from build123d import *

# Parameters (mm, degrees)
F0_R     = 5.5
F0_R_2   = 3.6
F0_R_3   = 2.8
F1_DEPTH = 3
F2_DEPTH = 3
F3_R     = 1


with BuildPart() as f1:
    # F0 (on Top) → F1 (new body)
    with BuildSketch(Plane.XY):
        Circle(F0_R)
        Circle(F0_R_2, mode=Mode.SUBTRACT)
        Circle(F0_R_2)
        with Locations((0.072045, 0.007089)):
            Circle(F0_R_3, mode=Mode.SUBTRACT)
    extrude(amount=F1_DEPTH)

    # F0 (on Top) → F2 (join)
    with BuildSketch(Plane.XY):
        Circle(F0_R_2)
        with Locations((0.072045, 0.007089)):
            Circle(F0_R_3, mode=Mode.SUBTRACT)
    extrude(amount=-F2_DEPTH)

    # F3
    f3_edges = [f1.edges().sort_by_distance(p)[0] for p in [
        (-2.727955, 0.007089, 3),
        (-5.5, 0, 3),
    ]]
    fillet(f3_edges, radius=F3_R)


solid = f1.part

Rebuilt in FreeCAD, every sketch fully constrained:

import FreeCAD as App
import Part
import Sketcher

V = App.Vector


def edges_at(feature, points):
    """Names of the edges that pass closest to the given points."""
    edges = feature.Shape.Edges
    near = lambda p: min(range(len(edges)), key=lambda i: edges[i].distToShape(Part.Vertex(*p))[0])
    return sorted({f"Edge{near(p) + 1}" for p in points})

doc = App.newDocument("Part")
body = doc.addObject("PartDesign::Body", "Body")

# Sketch on XY plane
sketch1 = doc.addObject("Sketcher::SketchObject", "Sketch")
body.addObject(sketch1)
sketch1.AttachmentSupport = (doc.XY_Plane, [""])
sketch1.MapMode = "FlatFace"
sketch1.addGeometry([
    Part.Circle(V(0, 0, 0), V(0, 0, 1), 5.5),
    Part.Circle(V(0.072045, 0.007089, 0), V(0, 0, 1), 2.8),
], False)
sketch1.addConstraint([
    Sketcher.Constraint("Coincident", 0, 3, -1, 1),
    Sketcher.Constraint("Diameter", 0, 11.0),
    Sketcher.Constraint("Diameter", 1, 5.6),
    Sketcher.Constraint("DistanceY", -1, 1, 1, 3, 0.007089),
    Sketcher.Constraint("DistanceX", -1, 1, 1, 3, 0.072045),
])
pad1 = doc.addObject("PartDesign::Pad", "Pad")
body.addObject(pad1)
pad1.Profile = sketch1
pad1.Length = 3

# Sketch on XY plane
sketch2 = doc.addObject("Sketcher::SketchObject", "Sketch001")
body.addObject(sketch2)
sketch2.AttachmentSupport = (doc.XY_Plane, [""])
sketch2.MapMode = "FlatFace"
sketch2.addGeometry([
    Part.Circle(V(0, 0, 0), V(0, 0, 1), 3.6),
    Part.Circle(V(0.072045, 0.007089, 0), V(0, 0, 1), 2.8),
], False)
sketch2.addConstraint([
    Sketcher.Constraint("Coincident", 0, 3, -1, 1),
    Sketcher.Constraint("Diameter", 0, 7.2),
    Sketcher.Constraint("Diameter", 1, 5.6),
    Sketcher.Constraint("DistanceY", -1, 1, 1, 3, 0.007089),
    Sketcher.Constraint("DistanceX", -1, 1, 1, 3, 0.072045),
])
pad2 = doc.addObject("PartDesign::Pad", "Pad001")
body.addObject(pad2)
pad2.Profile = sketch2
pad2.Length = 3
pad2.Reversed = True
doc.recompute()

fillet = doc.addObject("PartDesign::Fillet", "Fillet")
body.addObject(fillet)
fillet.Base = (pad2, edges_at(pad2, [(-2.728, 0.007, 3), (-5.5, 0, 3)]))
fillet.Radius = 1

doc.recompute()
